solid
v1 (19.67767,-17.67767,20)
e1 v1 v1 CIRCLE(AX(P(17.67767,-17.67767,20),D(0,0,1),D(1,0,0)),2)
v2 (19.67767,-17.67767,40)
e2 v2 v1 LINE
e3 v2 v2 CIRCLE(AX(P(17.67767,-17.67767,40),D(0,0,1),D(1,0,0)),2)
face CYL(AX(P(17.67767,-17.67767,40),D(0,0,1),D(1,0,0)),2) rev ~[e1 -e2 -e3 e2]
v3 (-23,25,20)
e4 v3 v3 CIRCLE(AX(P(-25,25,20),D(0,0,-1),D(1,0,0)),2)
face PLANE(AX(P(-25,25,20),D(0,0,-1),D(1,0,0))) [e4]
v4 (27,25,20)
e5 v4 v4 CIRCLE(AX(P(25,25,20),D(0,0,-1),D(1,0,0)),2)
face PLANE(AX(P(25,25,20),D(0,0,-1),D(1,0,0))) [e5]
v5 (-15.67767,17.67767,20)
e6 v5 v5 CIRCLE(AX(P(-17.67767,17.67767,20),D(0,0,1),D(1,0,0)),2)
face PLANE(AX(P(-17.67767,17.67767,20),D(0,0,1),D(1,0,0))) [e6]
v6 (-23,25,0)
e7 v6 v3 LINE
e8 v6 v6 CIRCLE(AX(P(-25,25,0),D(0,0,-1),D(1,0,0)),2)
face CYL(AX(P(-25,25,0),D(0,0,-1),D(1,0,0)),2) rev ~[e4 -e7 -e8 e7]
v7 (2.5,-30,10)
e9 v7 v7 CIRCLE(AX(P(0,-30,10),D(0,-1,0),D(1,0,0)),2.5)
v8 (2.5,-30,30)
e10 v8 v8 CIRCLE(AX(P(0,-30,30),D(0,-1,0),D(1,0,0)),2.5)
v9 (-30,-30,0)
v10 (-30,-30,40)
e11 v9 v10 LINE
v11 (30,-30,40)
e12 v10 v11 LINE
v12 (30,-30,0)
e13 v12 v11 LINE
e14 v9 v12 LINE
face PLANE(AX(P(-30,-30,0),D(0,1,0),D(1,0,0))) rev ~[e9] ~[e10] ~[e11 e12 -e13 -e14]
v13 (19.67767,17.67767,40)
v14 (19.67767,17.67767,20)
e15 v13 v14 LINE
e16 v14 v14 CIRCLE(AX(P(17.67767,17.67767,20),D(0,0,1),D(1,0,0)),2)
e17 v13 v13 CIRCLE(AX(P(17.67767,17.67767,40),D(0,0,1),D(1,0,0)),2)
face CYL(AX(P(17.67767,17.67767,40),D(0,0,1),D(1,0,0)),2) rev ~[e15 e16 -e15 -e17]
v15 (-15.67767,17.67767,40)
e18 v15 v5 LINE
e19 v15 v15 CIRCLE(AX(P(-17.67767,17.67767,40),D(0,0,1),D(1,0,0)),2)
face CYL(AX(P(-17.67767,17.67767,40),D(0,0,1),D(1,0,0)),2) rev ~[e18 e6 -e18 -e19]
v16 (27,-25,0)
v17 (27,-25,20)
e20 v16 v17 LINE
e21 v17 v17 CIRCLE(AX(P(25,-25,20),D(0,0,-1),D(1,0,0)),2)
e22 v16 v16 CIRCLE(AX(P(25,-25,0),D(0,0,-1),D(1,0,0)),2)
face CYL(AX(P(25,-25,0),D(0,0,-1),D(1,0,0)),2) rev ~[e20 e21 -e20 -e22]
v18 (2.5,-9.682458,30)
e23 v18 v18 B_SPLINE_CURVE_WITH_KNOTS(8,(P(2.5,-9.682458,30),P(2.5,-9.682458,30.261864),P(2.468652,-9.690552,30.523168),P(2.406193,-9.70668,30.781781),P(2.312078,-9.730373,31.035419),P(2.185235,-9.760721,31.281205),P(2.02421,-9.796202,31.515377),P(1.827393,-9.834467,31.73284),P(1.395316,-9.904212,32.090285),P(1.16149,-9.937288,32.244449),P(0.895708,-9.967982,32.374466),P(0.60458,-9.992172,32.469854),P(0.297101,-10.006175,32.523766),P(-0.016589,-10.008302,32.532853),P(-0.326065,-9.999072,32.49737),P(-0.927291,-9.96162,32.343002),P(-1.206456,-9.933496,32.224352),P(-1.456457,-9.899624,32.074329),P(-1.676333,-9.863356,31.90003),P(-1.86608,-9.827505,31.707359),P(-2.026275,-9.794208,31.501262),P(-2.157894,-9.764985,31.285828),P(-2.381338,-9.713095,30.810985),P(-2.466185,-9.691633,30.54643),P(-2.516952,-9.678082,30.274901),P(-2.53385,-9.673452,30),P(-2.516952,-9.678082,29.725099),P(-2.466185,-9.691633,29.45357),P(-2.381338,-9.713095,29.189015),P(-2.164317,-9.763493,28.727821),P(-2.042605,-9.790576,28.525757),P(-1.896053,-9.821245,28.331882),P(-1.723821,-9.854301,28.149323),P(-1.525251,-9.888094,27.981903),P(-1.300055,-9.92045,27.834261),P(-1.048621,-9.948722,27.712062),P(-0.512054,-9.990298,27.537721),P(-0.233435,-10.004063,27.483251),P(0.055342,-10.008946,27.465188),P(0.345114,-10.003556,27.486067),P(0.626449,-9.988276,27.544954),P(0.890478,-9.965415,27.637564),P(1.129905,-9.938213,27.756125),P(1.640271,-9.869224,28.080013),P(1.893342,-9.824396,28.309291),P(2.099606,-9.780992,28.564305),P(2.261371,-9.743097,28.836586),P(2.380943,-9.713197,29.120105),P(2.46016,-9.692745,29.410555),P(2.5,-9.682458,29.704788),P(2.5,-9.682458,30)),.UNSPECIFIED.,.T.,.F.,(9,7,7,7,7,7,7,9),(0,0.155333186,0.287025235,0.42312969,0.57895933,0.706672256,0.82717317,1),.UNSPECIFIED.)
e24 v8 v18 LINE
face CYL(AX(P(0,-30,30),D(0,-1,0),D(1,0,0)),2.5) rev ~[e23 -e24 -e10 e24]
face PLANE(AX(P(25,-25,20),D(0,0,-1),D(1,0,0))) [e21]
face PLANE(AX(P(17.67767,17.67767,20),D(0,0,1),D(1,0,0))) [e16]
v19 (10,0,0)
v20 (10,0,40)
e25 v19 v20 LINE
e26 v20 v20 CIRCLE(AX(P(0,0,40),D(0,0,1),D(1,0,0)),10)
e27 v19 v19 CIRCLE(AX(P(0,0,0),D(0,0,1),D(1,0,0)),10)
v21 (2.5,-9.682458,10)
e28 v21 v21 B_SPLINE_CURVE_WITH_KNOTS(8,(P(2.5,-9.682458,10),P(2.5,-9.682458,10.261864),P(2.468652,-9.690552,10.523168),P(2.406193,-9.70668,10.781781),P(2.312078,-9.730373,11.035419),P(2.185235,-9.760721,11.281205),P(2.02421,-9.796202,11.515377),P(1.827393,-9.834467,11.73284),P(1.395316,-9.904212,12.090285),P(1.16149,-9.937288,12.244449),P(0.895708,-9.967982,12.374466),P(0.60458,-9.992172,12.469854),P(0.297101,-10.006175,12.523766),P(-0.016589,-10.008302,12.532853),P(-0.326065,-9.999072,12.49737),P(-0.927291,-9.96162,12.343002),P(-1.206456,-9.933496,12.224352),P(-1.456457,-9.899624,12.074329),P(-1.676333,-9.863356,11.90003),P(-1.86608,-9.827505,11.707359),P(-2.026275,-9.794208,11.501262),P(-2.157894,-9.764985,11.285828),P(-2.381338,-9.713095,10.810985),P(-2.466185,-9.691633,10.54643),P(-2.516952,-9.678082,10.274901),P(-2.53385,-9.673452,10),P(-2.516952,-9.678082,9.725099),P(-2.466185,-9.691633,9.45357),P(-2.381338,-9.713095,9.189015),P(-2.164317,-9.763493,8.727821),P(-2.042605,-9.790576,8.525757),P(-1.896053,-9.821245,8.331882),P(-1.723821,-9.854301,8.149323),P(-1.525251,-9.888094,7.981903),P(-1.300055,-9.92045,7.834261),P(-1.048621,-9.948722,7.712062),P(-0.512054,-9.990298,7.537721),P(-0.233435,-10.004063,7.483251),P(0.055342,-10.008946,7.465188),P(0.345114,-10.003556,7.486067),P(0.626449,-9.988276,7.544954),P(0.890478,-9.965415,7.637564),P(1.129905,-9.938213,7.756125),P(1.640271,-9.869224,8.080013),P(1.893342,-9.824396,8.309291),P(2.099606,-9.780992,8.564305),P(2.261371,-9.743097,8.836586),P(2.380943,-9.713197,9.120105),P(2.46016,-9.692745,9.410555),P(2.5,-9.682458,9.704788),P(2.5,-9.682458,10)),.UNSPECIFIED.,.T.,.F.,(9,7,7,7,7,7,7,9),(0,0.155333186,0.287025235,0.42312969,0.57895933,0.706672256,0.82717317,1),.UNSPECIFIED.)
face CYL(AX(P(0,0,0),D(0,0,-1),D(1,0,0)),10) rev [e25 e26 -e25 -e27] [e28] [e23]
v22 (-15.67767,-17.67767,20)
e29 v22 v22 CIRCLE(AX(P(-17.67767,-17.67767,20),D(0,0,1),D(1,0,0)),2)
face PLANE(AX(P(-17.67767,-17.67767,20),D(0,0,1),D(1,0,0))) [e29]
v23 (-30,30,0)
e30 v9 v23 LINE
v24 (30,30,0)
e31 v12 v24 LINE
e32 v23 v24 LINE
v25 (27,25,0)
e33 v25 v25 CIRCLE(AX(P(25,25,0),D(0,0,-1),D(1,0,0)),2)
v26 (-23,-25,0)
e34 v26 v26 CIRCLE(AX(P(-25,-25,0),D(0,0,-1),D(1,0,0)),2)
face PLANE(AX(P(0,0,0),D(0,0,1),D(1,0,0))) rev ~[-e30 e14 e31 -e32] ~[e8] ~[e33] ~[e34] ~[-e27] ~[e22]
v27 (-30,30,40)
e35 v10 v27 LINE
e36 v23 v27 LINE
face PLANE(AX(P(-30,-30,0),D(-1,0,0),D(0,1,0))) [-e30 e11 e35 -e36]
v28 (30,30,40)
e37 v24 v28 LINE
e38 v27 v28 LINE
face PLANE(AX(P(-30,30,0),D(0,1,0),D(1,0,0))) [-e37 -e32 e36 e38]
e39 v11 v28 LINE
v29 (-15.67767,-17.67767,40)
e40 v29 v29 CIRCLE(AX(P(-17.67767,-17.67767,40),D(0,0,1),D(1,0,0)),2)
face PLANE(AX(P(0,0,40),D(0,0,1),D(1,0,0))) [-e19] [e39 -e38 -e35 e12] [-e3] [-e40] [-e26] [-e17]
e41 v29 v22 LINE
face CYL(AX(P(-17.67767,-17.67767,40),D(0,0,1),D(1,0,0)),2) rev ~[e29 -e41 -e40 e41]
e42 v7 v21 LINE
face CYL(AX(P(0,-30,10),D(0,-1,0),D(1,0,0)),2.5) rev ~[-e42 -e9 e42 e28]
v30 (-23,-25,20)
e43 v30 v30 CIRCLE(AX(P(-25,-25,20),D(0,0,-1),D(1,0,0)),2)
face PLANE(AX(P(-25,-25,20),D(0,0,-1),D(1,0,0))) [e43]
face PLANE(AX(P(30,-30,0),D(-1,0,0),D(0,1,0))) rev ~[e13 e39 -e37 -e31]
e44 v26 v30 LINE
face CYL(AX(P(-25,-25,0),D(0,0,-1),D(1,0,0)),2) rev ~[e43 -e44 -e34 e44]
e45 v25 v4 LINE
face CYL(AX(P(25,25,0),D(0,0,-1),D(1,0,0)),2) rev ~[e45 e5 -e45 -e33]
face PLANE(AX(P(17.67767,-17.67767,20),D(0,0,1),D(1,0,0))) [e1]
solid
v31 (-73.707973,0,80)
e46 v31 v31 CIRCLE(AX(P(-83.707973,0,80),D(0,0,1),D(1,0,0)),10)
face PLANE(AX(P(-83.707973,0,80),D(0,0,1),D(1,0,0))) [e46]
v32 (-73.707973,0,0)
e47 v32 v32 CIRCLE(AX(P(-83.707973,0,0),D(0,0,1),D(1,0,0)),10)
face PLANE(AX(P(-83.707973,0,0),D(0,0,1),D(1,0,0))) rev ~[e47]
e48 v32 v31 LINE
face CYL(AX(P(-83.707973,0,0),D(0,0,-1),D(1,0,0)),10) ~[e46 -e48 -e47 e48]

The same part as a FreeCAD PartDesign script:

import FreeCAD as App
import Part
import Sketcher

V = App.Vector
Q = App.Units.Quantity

doc = App.newDocument("Part")
body = doc.addObject("PartDesign::Body", "Body")

# Sketch on XY plane
sketch1 = doc.addObject("Sketcher::SketchObject", "Sketch")
body.addObject(sketch1)
sketch1.AttachmentSupport = (doc.XY_Plane, [""])
sketch1.MapMode = "FlatFace"
sketch1.addGeometry([
    Part.LineSegment(V(-30, 30, 0), V(-30, -30, 0)),  # 0
    Part.LineSegment(V(-30, -30, 0), V(30, -30, 0)),  # 1
    Part.LineSegment(V(30, -30, 0), V(30, 30, 0)),  # 2
    Part.LineSegment(V(30, 30, 0), V(-30, 30, 0)),  # 3
    Part.Circle(V(0, 0, 0), V(0, 0, 1), 10),  # 4
], False)
sketch1.addConstraint([
    Sketcher.Constraint("Coincident", 0, 2, 1, 1),
    Sketcher.Constraint("Coincident", 1, 2, 2, 1),
    Sketcher.Constraint("Coincident", 2, 2, 3, 1),
    Sketcher.Constraint("Coincident", 3, 2, 0, 1),
    Sketcher.Constraint("Vertical", 0),
    Sketcher.Constraint("Horizontal", 1),
    Sketcher.Constraint("Vertical", 2),
    Sketcher.Constraint("Horizontal", 3),
    Sketcher.Constraint("Coincident", 4, 3, -1, 1),
    Sketcher.Constraint("Symmetric", 0, 2, 2, 2, -1, 1),
    Sketcher.Constraint("Equal", 3, 0),
    Sketcher.Constraint("Diameter", 4, Q("20 mm")),
    Sketcher.Constraint("DistanceX", 1, 1, 1, 2, Q("60 mm")),
])
pad1 = doc.addObject("PartDesign::Pad", "Pad")
body.addObject(pad1)
pad1.Profile = sketch1
pad1.Length = 40

# Sketch on XY plane
sketch2 = doc.addObject("Sketcher::SketchObject", "Sketch001")
body.addObject(sketch2)
sketch2.AttachmentSupport = (doc.XY_Plane, [""])
sketch2.MapMode = "FlatFace"
sketch2.addGeometry([
    Part.Circle(V(-25, -25, 0), V(0, 0, 1), 2),
    Part.Circle(V(25, -25, 0), V(0, 0, 1), 2),
    Part.Circle(V(-25, 25, 0), V(0, 0, 1), 2),
    Part.Circle(V(25, 25, 0), V(0, 0, 1), 2),
], False)
sketch2.addConstraint([
    Sketcher.Constraint("Equal", 0, 1),
    Sketcher.Constraint("Equal", 1, 2),
    Sketcher.Constraint("Equal", 2, 3),
    Sketcher.Constraint("Symmetric", 1, 3, 2, 3, -1, 1),
    Sketcher.Constraint("Symmetric", 0, 3, 3, 3, -1, 1),
    Sketcher.Constraint("Symmetric", 0, 3, 1, 3, -2),
    Sketcher.Constraint("Diameter", 0, Q("4 mm")),
    Sketcher.Constraint("DistanceX", 0, 3, -1, 1, Q("25 mm")),
    Sketcher.Constraint("DistanceY", 0, 3, -1, 1, Q("25 mm")),
])
pocket1 = doc.addObject("PartDesign::Pocket", "Pocket")
body.addObject(pocket1)
pocket1.Profile = sketch2
pocket1.Length = 20
pocket1.Reversed = True

# Sketch on XZ plane
sketch3 = doc.addObject("Sketcher::SketchObject", "Sketch002")
body.addObject(sketch3)
sketch3.AttachmentSupport = (doc.XZ_Plane, [""])
sketch3.MapMode = "FlatFace"
sketch3.AttachmentOffset = App.Placement(V(0, 0, 30), App.Rotation())
sketch3.addGeometry([
    Part.Circle(V(0, 30, 0), V(0, 0, 1), 2.5),
    Part.Circle(V(0, 10, 0), V(0, 0, 1), 2.5),
], False)
sketch3.addConstraint([
    Sketcher.Constraint("Equal", 0, 1),
    Sketcher.Constraint("PointOnObject", 0, 3, -2),
    Sketcher.Constraint("PointOnObject", 1, 3, -2),
    Sketcher.Constraint("Diameter", 0, Q("5 mm")),
    Sketcher.Constraint("DistanceY", -1, 1, 0, 3, Q("30 mm")),
    Sketcher.Constraint("DistanceY", -1, 1, 1, 3, Q("10 mm")),
])
pocket2 = doc.addObject("PartDesign::Pocket", "Pocket001")
body.addObject(pocket2)
pocket2.Profile = sketch3
pocket2.Length = 25

# Sketch on XY plane
sketch4 = doc.addObject("Sketcher::SketchObject", "Sketch003")
body.addObject(sketch4)
sketch4.AttachmentSupport = (doc.XY_Plane, [""])
sketch4.MapMode = "FlatFace"
sketch4.AttachmentOffset = App.Placement(V(0, 0, 40), App.Rotation())
sketch4.addGeometry([
    Part.Circle(V(-17.7, 17.7, 0), V(0, 0, 1), 2),
    Part.Circle(V(-17.7, -17.7, 0), V(0, 0, 1), 2),
    Part.Circle(V(17.7, -17.7, 0), V(0, 0, 1), 2),
    Part.Circle(V(17.7, 17.7, 0), V(0, 0, 1), 2),
], False)
sketch4.addConstraint([
    Sketcher.Constraint("Equal", 0, 1),
    Sketcher.Constraint("Equal", 1, 2),
    Sketcher.Constraint("Equal", 2, 3),
    Sketcher.Constraint("Symmetric", 0, 3, 2, 3, -1, 1),
    Sketcher.Constraint("Symmetric", 1, 3, 3, 3, -1, 1),
    Sketcher.Constraint("Symmetric", 1, 3, 2, 3, -2),
    Sketcher.Constraint("Diameter", 0, Q("4 mm")),
    Sketcher.Constraint("DistanceX", 0, 3, -1, 1, Q("17.67767 mm")),
    Sketcher.Constraint("DistanceY", -1, 1, 0, 3, Q("17.67767 mm")),
])
pocket3 = doc.addObject("PartDesign::Pocket", "Pocket002")
body.addObject(pocket3)
pocket3.Profile = sketch4
pocket3.Length = 20
body2 = doc.addObject("PartDesign::Body", "Body001")

# Sketch on XY plane
sketch5 = doc.addObject("Sketcher::SketchObject", "Sketch004")
body2.addObject(sketch5)
sketch5.AttachmentSupport = (doc.getObject("XY_Plane001"), [""])
sketch5.MapMode = "FlatFace"
sketch5.addGeometry(Part.Circle(V(-84, 0, 0), V(0, 0, 1), 10), False)
sketch5.addConstraint([
    Sketcher.Constraint("PointOnObject", 0, 3, -1),
    Sketcher.Constraint("Diameter", 0, Q("20 mm")),
    Sketcher.Constraint("DistanceX", 0, 3, -1, 1, Q("83.707973 mm")),
])
pad2 = doc.addObject("PartDesign::Pad", "Pad001")
body2.addObject(pad2)
pad2.Profile = sketch5
pad2.Length = 80

doc.recompute()
